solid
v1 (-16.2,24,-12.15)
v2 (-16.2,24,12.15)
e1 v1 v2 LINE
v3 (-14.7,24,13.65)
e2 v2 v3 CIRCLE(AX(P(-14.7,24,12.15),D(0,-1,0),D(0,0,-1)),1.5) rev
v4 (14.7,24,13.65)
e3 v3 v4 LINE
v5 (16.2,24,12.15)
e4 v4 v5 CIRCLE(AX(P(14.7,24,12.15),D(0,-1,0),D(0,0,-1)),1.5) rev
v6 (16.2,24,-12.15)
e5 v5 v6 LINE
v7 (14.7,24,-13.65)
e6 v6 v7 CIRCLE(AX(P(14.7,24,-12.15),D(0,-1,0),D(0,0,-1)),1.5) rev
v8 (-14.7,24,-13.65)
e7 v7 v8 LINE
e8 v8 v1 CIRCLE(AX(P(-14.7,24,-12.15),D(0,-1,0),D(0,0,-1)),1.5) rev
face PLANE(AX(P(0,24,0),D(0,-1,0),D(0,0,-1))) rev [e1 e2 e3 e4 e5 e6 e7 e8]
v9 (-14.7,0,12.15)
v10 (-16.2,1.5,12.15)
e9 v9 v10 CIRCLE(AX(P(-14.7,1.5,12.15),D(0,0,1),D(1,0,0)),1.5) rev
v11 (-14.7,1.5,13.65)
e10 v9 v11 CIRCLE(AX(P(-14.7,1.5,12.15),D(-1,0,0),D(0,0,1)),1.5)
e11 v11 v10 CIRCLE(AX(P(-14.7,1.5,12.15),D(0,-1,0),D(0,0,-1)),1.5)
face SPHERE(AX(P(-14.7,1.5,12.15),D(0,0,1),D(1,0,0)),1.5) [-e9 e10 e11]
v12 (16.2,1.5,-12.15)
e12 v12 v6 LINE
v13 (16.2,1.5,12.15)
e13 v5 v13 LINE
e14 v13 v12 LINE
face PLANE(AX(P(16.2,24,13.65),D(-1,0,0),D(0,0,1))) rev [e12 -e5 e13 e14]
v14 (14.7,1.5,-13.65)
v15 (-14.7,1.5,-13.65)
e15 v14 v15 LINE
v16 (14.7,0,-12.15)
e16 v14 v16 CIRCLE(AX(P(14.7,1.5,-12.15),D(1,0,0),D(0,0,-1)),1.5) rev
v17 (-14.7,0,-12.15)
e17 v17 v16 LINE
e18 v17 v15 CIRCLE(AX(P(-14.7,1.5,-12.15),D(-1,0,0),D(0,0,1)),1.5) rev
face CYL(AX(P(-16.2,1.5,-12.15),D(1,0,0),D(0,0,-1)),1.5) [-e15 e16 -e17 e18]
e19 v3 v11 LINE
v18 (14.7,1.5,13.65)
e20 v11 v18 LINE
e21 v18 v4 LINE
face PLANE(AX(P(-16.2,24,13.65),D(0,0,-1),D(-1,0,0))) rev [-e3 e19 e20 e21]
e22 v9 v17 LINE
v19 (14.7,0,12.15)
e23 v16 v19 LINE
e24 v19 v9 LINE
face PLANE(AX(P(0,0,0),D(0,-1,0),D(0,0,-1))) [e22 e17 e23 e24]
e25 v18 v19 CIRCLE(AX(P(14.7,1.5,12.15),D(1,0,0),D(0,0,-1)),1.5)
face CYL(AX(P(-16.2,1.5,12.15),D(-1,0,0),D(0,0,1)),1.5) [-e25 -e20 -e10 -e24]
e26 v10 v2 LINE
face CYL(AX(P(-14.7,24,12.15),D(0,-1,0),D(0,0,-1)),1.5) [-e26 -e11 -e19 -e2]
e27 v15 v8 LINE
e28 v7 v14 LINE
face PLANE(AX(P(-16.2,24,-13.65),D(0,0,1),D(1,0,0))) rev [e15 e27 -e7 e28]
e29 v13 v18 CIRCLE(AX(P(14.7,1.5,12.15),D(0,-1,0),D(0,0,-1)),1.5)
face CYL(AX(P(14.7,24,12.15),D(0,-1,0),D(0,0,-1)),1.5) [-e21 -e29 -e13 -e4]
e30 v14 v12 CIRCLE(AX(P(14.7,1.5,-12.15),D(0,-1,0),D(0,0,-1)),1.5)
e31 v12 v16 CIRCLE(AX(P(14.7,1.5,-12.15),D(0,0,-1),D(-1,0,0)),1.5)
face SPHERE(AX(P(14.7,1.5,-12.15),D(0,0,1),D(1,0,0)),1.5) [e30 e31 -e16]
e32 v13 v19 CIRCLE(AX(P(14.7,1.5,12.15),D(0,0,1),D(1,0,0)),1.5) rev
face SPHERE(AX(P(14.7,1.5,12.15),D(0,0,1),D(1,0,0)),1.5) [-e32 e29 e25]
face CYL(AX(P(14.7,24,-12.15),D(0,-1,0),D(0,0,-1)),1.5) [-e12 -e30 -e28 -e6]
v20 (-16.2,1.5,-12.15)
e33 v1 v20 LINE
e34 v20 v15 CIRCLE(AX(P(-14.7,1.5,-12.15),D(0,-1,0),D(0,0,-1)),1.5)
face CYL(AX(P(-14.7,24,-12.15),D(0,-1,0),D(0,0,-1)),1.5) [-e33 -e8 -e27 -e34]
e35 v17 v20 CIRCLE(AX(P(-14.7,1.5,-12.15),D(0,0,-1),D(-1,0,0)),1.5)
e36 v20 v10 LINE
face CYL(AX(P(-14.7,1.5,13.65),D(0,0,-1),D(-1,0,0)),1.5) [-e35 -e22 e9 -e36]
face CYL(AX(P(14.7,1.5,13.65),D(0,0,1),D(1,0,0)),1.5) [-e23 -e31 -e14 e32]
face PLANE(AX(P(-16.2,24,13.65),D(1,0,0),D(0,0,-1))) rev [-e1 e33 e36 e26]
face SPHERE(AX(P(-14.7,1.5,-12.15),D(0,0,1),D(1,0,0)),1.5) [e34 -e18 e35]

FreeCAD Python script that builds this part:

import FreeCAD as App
import Part
import Sketcher

V = App.Vector
Q = App.Units.Quantity


def edges_at(feature, points):
    """Names of the edges that pass closest to the given points."""
    edges = feature.Shape.Edges
    near = lambda p: min(range(len(edges)), key=lambda i: edges[i].distToShape(Part.Vertex(*p))[0])
    return sorted({f"Edge{near(p) + 1}" for p in points})


def add_polygon(sketch, points):
    """Adds a closed chain of lines whose ends are joined by coincident constraints."""
    first, n = sketch.GeometryCount, len(points)
    for a, b in zip(points, points[1:] + points[:1]):
        sketch.addGeometry(Part.LineSegment(App.Vector(*a, 0), App.Vector(*b, 0)), False)
    for i in range(n):
        sketch.addConstraint(Sketcher.Constraint("Coincident", first + i, 2, first + (i + 1) % n, 1))

doc = App.newDocument("Part")
body = doc.addObject("PartDesign::Body", "Body")

# Sketch on XZ plane
sketch1 = body.newObject("Sketcher::SketchObject", "Sketch")
sketch1.AttachmentSupport = (doc.getObject("XZ_Plane"), [""])
sketch1.MapMode = "FlatFace"
add_polygon(sketch1, [(-16.2, -13.65), (-16.2, 13.65), (16.2, 13.65), (16.2, -13.65)])  # lines 0-3
sketch1.addConstraint([
    Sketcher.Constraint("Vertical", 0),
    Sketcher.Constraint("Horizontal", 1),
    Sketcher.Constraint("Vertical", 2),
    Sketcher.Constraint("Horizontal", 3),
    Sketcher.Constraint("Symmetric", 0, 2, 2, 2, -1, 1),
    Sketcher.Constraint("DistanceX", 1, 1, 1, 2, Q("32.4 mm")),
    Sketcher.Constraint("DistanceY", 0, 1, 0, 2, Q("27.3 mm")),
])
pad1 = body.newObject("PartDesign::Pad", "Pad")
pad1.Profile = sketch1
pad1.Length = 24
pad1.Reversed = True
doc.recompute()

fillet = body.newObject("PartDesign::Fillet", "Fillet")
fillet.Base = (pad1, edges_at(pad1, [
    (0, 0, 13.65),
    (-16.2, 0, 0),
    (0, 0, -13.65),
    (16.2, 0, 0),
    (16.2, 12, 13.65),
    (-16.2, 12, 13.65),
    (-16.2, 12, -13.65),
    (16.2, 12, -13.65),
]))
fillet.Radius = 1.5

doc.recompute()
